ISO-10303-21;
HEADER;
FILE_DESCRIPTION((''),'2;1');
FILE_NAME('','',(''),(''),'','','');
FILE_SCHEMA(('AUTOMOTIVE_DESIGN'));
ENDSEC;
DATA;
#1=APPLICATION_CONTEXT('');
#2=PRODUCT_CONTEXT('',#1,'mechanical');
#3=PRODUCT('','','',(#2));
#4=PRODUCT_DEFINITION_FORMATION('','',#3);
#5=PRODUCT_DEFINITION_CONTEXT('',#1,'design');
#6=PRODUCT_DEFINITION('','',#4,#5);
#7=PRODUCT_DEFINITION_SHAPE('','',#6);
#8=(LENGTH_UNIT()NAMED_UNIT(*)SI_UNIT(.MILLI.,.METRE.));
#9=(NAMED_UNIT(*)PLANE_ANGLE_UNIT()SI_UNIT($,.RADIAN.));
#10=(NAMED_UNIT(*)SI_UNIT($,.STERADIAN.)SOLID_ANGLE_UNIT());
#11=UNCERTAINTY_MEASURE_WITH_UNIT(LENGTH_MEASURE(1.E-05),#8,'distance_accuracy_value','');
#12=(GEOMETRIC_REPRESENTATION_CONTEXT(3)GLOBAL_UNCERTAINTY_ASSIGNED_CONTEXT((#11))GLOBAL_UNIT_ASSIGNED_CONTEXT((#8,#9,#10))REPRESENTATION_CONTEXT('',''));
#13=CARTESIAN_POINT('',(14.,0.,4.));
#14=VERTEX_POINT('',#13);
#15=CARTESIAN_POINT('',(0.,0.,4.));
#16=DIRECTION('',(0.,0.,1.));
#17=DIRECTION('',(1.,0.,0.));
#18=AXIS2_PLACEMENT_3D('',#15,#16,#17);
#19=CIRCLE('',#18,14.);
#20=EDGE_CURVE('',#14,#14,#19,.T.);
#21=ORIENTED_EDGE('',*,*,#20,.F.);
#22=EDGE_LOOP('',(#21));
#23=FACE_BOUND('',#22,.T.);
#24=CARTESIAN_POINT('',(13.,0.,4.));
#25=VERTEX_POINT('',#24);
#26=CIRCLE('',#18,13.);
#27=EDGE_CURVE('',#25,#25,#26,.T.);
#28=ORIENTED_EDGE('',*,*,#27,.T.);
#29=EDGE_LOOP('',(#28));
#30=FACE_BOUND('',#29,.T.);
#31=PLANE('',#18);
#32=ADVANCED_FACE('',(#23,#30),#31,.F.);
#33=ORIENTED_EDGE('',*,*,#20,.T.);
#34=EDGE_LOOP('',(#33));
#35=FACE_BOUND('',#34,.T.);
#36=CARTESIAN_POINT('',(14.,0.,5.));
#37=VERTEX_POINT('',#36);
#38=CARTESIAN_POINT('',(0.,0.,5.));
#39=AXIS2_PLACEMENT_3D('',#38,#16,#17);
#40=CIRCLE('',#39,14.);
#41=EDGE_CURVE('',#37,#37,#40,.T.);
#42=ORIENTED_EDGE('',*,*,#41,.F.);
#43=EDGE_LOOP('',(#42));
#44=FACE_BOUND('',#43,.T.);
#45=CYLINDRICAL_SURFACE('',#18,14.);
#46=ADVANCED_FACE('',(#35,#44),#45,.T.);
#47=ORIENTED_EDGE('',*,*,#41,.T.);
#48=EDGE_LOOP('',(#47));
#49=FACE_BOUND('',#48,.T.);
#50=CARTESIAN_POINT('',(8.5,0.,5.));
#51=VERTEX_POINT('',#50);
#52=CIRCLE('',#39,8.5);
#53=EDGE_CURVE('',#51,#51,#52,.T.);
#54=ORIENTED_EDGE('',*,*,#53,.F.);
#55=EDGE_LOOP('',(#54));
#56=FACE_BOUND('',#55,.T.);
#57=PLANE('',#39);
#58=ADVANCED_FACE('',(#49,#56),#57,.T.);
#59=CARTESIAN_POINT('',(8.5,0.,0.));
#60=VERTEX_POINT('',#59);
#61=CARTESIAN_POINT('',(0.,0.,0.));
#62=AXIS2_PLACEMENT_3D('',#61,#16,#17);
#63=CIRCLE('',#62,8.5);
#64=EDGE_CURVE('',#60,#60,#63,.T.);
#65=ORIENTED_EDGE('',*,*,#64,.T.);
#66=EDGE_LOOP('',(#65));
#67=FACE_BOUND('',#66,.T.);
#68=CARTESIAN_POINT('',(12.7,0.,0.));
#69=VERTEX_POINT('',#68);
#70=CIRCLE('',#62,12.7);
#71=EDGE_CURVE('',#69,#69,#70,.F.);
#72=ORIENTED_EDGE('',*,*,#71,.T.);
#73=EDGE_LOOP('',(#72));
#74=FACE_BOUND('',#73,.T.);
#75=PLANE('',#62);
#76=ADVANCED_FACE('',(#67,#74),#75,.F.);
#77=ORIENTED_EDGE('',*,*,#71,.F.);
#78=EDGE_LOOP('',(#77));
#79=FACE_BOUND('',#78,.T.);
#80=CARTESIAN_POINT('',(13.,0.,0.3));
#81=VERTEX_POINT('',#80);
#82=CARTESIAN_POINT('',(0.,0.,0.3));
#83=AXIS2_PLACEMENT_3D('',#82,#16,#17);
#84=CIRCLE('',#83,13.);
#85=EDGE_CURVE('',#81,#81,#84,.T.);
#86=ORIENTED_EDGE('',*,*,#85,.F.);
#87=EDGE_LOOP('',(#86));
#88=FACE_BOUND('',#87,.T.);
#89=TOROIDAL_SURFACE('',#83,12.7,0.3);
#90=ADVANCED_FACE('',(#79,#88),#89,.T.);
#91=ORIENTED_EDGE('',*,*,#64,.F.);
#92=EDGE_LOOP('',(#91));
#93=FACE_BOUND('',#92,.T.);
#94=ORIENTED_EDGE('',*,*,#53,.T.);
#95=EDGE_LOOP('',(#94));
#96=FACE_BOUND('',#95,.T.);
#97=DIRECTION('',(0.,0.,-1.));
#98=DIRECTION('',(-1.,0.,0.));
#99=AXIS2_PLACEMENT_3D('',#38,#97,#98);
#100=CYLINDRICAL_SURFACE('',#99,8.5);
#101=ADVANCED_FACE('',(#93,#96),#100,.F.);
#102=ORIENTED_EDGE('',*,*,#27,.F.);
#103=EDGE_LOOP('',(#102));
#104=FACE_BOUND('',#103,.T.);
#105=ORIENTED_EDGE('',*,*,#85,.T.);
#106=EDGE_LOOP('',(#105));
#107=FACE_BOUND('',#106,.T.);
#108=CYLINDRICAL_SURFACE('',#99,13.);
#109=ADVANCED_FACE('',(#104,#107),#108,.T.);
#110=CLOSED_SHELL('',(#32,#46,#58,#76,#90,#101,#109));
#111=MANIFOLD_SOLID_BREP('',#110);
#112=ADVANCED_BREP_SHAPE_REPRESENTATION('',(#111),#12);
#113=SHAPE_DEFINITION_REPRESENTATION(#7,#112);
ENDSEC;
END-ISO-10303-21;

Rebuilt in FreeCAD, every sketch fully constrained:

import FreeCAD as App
import Part
import Sketcher
from FreeCAD import Vector


def edges_at(feature, points):
    """Names of the edges that pass closest to the given points."""
    edges = feature.Shape.Edges
    near = lambda p: min(range(len(edges)), key=lambda i: edges[i].distToShape(Part.Vertex(*p))[0])
    return sorted({f"Edge{near(p) + 1}" for p in points})

doc = App.newDocument("Part")
params = doc.addObject("Spreadsheet::Sheet", "Params")
for row, (alias, value) in enumerate([
    ("sketch1_diameter", "26 mm"),
    ("sketch1_diameter2", "17 mm"),
    ("pad1_length", "5 mm"),
    ("sketch2_diameter", "28 mm"),
    ("sketch2_diameter2", "26 mm"),
    ("pad2_length", "1 mm"),
    ("fillet_radius", "0.3 mm"),
], start=1):
    params.set(f"A{row}", alias)
    params.set(f"B{row}", "=" + value)
    params.setAlias(f"B{row}", alias)

body = doc.addObject("PartDesign::Body", "Body")

# Sketch on XY plane
sketch1 = body.newObject("Sketcher::SketchObject", "Sketch")
sketch1.AttachmentSupport = (doc.getObject("XY_Plane"), [""])
sketch1.MapMode = "FlatFace"
sketch1.addGeometry([
    Part.Circle(Vector(0, 0, 0), Vector(0, 0, 1), 13),
    Part.Circle(Vector(0, 0, 0), Vector(0, 0, 1), 8),
], False)
sketch1.addConstraint([
    Sketcher.Constraint("Coincident", 0, 3, -1, 1),
    Sketcher.Constraint("Coincident", 1, 3, -1, 1),
    Sketcher.Constraint("Diameter", 0, 26.0),
    Sketcher.Constraint("Diameter", 1, 17.0),
])
sketch1.setExpression("Constraints[2]", "Params.sketch1_diameter")
sketch1.setExpression("Constraints[3]", "Params.sketch1_diameter2")
pad1 = body.newObject("PartDesign::Pad", "Pad")
pad1.Profile = sketch1
pad1.setExpression("Length", "Params.pad1_length")

# Sketch on XY plane
sketch2 = body.newObject("Sketcher::SketchObject", "Sketch001")
sketch2.AttachmentSupport = (doc.getObject("XY_Plane"), [""])
sketch2.MapMode = "FlatFace"
sketch2.AttachmentOffset = App.Placement(Vector(0, 0, 5), App.Rotation())
sketch2.addGeometry([
    Part.Circle(Vector(0, 0, 0), Vector(0, 0, 1), 14),
    Part.Circle(Vector(0, 0, 0), Vector(0, 0, 1), 13),
], False)
sketch2.addConstraint([
    Sketcher.Constraint("Coincident", 0, 3, -1, 1),
    Sketcher.Constraint("Coincident", 1, 3, -1, 1),
    Sketcher.Constraint("Diameter", 0, 28.0),
    Sketcher.Constraint("Diameter", 1, 26.0),
])
sketch2.setExpression("Constraints[2]", "Params.sketch2_diameter")
sketch2.setExpression("Constraints[3]", "Params.sketch2_diameter2")
pad2 = body.newObject("PartDesign::Pad", "Pad001")
pad2.Profile = sketch2
pad2.setExpression("Length", "Params.pad2_length")
pad2.Reversed = True
doc.recompute()

fillet = body.newObject("PartDesign::Fillet", "Fillet")
fillet.Base = (pad2, edges_at(pad2, [(-13, 0, 0)]))
fillet.setExpression("Radius", "Params.fillet_radius")

doc.recompute()
